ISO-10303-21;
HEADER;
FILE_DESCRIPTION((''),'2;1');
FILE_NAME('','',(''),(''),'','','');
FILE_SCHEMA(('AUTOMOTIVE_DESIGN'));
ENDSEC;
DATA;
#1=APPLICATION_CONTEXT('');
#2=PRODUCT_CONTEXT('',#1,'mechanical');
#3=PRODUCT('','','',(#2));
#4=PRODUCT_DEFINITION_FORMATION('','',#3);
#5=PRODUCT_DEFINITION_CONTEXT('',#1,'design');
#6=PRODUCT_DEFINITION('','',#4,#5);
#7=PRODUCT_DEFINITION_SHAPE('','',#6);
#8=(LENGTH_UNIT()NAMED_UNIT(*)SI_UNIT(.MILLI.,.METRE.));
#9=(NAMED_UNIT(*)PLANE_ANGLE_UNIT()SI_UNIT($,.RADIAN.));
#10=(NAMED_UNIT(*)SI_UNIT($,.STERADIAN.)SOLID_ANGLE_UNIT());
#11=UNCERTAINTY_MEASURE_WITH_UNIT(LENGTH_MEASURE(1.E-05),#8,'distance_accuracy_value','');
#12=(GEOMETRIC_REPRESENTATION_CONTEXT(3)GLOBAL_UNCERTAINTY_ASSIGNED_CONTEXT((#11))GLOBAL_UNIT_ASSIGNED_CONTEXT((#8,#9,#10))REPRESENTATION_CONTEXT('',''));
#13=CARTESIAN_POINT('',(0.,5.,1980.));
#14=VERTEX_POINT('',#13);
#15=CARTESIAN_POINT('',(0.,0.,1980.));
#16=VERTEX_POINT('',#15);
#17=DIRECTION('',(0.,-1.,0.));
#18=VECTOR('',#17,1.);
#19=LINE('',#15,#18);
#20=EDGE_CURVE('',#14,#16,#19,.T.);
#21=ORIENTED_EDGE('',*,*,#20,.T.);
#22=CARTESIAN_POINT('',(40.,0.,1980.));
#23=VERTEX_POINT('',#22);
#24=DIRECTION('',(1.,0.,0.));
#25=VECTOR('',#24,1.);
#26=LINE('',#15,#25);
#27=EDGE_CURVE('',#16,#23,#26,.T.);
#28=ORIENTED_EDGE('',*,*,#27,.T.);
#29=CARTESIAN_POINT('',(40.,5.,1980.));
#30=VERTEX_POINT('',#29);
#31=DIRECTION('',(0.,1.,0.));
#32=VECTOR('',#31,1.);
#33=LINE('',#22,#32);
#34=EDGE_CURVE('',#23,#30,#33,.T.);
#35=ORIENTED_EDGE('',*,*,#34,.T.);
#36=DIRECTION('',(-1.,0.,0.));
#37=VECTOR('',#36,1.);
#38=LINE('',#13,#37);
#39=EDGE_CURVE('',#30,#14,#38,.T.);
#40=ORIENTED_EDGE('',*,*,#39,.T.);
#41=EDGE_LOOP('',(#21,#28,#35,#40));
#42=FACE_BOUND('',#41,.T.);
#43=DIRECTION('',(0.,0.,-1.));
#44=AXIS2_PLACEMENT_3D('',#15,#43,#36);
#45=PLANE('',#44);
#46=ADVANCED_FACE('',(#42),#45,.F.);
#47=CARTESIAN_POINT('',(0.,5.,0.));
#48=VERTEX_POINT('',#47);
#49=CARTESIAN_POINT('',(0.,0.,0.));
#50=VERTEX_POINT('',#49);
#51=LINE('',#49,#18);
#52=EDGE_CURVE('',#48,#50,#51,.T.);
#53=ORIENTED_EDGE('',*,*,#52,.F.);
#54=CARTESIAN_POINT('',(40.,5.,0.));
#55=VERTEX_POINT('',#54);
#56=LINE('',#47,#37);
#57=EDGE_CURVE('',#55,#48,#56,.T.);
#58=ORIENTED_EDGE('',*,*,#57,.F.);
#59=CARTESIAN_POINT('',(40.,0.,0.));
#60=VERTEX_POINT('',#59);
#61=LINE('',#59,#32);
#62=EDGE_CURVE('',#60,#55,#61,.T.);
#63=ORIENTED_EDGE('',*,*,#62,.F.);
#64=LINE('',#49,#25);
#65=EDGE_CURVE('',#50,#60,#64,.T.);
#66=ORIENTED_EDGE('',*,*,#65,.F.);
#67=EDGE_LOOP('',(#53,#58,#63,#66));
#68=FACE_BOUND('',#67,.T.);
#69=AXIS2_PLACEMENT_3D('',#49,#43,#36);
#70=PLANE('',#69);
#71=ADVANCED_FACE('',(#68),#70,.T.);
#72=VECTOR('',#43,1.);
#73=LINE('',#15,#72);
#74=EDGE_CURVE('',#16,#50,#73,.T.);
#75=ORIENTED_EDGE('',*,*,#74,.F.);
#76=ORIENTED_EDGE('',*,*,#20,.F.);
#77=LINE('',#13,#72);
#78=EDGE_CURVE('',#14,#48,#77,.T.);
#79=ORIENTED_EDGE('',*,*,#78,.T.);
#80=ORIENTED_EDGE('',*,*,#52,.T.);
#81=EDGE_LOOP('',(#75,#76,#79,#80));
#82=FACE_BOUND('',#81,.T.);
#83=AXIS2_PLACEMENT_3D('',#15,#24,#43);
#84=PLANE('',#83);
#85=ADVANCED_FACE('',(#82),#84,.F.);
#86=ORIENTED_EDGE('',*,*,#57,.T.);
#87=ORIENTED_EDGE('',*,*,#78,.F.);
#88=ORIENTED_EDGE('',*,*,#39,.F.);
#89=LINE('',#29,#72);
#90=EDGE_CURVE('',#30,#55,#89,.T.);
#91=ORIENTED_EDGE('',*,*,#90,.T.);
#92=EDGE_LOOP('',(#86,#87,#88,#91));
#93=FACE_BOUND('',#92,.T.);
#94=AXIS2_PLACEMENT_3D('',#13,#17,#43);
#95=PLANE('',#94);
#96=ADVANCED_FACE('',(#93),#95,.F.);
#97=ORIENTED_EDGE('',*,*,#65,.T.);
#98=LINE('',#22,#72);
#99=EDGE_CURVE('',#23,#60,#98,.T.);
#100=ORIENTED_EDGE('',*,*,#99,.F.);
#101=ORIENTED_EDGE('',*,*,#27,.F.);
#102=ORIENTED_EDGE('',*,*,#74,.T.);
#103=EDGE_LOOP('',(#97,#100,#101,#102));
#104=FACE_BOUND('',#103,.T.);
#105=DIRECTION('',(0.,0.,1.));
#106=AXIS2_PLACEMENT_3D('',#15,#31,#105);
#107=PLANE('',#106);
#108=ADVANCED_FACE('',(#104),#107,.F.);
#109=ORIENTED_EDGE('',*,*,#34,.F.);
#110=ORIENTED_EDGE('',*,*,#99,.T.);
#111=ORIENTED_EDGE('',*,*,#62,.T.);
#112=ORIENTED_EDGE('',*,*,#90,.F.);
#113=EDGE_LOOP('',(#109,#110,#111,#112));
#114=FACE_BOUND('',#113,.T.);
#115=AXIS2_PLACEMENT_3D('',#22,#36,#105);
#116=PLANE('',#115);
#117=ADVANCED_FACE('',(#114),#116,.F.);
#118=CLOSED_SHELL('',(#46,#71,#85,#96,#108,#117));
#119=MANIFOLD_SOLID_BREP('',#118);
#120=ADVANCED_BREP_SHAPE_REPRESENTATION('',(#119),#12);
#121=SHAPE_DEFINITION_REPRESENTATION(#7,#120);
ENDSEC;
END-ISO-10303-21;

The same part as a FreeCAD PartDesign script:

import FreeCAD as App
import Part
import Sketcher
from FreeCAD import Vector
Q = App.Units.Quantity

doc = App.newDocument("Part")
body = doc.addObject("PartDesign::Body", "Body")

sketch1 = body.newObject("Sketcher::SketchObject", "Sketch")
sketch1.AttachmentSupport = (doc.getObject("XY_Plane"), [""])
sketch1.MapMode = "FlatFace"
sketch1.addGeometry([
    Part.LineSegment(Vector(0, 5, 0), Vector(0, 0, 0)),
    Part.LineSegment(Vector(0, 0, 0), Vector(40, 0, 0)),
    Part.LineSegment(Vector(40, 0, 0), Vector(40, 5, 0)),
    Part.LineSegment(Vector(40, 5, 0), Vector(0, 5, 0)),
], False)
sketch1.addConstraint([
    Sketcher.Constraint("Coincident", 0, 2, 1, 1),
    Sketcher.Constraint("Coincident", 1, 2, 2, 1),
    Sketcher.Constraint("Coincident", 2, 2, 3, 1),
    Sketcher.Constraint("Coincident", 3, 2, 0, 1),
    Sketcher.Constraint("Vertical", 0),
    Sketcher.Constraint("Horizontal", 1),
    Sketcher.Constraint("Vertical", 2),
    Sketcher.Constraint("Horizontal", 3),
    Sketcher.Constraint("Coincident", 0, 2, -1, 1),
    Sketcher.Constraint("DistanceX", 1, 1, 1, 2, Q("40 mm")),
    Sketcher.Constraint("DistanceY", 0, 2, 0, 1, Q("5 mm")),
])
pad1 = body.newObject("PartDesign::Pad", "Pad")
pad1.Profile = sketch1
pad1.Length = 1980

doc.recompute()
